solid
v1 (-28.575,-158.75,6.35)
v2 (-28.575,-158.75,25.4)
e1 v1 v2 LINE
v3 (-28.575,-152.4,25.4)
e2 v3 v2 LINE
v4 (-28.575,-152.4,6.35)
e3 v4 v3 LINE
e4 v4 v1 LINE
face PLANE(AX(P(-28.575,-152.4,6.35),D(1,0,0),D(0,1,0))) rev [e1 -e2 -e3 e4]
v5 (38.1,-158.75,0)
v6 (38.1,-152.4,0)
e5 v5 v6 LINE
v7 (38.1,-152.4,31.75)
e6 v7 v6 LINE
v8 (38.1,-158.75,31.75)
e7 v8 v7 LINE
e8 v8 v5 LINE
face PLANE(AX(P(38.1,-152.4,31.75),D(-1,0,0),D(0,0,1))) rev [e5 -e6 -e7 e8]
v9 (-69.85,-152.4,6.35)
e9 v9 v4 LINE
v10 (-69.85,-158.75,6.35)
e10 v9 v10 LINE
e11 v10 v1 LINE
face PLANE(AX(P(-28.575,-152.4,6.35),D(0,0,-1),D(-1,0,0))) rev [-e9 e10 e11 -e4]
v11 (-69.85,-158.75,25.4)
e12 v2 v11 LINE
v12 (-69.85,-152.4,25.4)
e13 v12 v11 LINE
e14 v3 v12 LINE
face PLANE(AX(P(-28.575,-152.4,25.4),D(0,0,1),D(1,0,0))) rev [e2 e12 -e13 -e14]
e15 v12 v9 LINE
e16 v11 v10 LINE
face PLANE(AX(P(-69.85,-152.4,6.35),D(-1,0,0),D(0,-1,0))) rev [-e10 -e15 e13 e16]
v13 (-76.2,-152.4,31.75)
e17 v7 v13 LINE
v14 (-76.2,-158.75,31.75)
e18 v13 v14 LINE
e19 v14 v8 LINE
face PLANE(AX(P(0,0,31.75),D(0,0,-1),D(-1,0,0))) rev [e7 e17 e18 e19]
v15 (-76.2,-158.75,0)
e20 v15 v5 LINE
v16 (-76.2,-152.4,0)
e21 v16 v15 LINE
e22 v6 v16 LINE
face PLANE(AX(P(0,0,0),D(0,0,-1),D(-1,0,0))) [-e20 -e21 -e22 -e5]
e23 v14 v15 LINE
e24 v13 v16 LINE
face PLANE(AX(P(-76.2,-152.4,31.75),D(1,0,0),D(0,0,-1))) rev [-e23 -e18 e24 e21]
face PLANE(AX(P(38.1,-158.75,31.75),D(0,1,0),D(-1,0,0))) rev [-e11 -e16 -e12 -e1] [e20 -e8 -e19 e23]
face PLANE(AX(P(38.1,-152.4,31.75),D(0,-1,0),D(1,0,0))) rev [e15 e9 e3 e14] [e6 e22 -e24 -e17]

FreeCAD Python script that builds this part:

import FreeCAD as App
import Part
import Sketcher

V = App.Vector
Q = App.Units.Quantity

doc = App.newDocument("Part")
body = doc.addObject("PartDesign::Body", "Body")

# Sketch on XY plane
sketch1 = body.newObject("Sketcher::SketchObject", "Sketch")
sketch1.AttachmentSupport = (doc.getObject("XY_Plane"), [""])
sketch1.MapMode = "FlatFace"
sketch1.addGeometry([
    Part.LineSegment(V(-76.2, -152.4, 0), V(-76.2, -158.75, 0)),
    Part.LineSegment(V(-76.2, -158.75, 0), V(38.1, -158.75, 0)),
    Part.LineSegment(V(38.1, -158.75, 0), V(38.1, -152.4, 0)),
    Part.LineSegment(V(38.1, -152.4, 0), V(-76.2, -152.4, 0)),
], False)
sketch1.addConstraint([
    Sketcher.Constraint("Coincident", 0, 2, 1, 1),
    Sketcher.Constraint("Coincident", 1, 2, 2, 1),
    Sketcher.Constraint("Coincident", 2, 2, 3, 1),
    Sketcher.Constraint("Coincident", 3, 2, 0, 1),
    Sketcher.Constraint("Vertical", 0),
    Sketcher.Constraint("Horizontal", 1),
    Sketcher.Constraint("Vertical", 2),
    Sketcher.Constraint("Horizontal", 3),
    Sketcher.Constraint("DistanceX", 1, 1, 1, 2, Q("4.5 in")),
    Sketcher.Constraint("DistanceX", 0, 2, -1, 1, Q("3 in")),
    Sketcher.Constraint("DistanceY", 2, 2, -1, 1, Q("6 in")),
    Sketcher.Constraint("DistanceY", 0, 2, 0, 1, Q("0.25 in")),
])
pad1 = body.newObject("PartDesign::Pad", "Pad")
pad1.Profile = sketch1
pad1.Length = Q("1.25 in")

# Sketch on XZ plane
sketch2 = body.newObject("Sketcher::SketchObject", "Sketch001")
sketch2.AttachmentSupport = (doc.getObject("XZ_Plane"), [""])
sketch2.MapMode = "FlatFace"
sketch2.AttachmentOffset = App.Placement(V(0, 0, 6.25 * 25.4), App.Rotation())
sketch2.addGeometry([
    Part.LineSegment(V(-69.85, 25.4, 0), V(-69.85, 6.35, 0)),
    Part.LineSegment(V(-69.85, 6.35, 0), V(-28.575, 6.35, 0)),
    Part.LineSegment(V(-28.575, 6.35, 0), V(-28.575, 25.4, 0)),
    Part.LineSegment(V(-28.575, 25.4, 0), V(-69.85, 25.4, 0)),
], False)
sketch2.addConstraint([
    Sketcher.Constraint("Coincident", 0, 2, 1, 1),
    Sketcher.Constraint("Coincident", 1, 2, 2, 1),
    Sketcher.Constraint("Coincident", 2, 2, 3, 1),
    Sketcher.Constraint("Coincident", 3, 2, 0, 1),
    Sketcher.Constraint("Vertical", 0),
    Sketcher.Constraint("Horizontal", 1),
    Sketcher.Constraint("Vertical", 2),
    Sketcher.Constraint("Horizontal", 3),
    Sketcher.Constraint("DistanceY", -1, 1, 2, 2, Q("1 in")),
    Sketcher.Constraint("DistanceY", 0, 2, 0, 1, Q("0.75 in")),
    Sketcher.Constraint("DistanceX", 1, 1, 1, 2, Q("1.625 in")),
    Sketcher.Constraint("DistanceX", 0, 2, -1, 1, Q("2.75 in")),
])
pocket1 = body.newObject("PartDesign::Pocket", "Pocket")
pocket1.Profile = sketch2
pocket1.Type = "ThroughAll"

doc.recompute()
